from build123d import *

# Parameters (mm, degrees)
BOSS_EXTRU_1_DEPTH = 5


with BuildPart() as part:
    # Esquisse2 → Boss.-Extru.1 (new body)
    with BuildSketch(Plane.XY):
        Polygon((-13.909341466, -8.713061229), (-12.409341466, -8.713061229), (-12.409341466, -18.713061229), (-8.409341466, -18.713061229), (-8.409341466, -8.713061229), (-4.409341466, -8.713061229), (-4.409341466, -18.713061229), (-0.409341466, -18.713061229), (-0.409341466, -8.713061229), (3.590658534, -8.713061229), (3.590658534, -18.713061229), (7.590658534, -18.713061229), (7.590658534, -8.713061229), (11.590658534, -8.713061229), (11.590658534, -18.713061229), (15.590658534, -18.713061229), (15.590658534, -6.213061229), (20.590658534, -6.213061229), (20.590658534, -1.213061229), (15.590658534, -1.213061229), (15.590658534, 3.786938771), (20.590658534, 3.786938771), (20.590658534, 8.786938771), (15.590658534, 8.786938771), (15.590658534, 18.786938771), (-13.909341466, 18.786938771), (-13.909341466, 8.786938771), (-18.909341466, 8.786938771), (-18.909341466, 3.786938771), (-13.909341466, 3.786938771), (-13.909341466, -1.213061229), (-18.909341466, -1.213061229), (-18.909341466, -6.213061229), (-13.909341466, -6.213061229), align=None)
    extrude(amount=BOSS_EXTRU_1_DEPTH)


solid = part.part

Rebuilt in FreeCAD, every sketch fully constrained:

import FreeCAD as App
import Part
import Sketcher
Q = App.Units.Quantity


def add_polygon(sketch, points):
    """Adds a closed chain of lines whose ends are joined by coincident constraints."""
    first, n = sketch.GeometryCount, len(points)
    for a, b in zip(points, points[1:] + points[:1]):
        sketch.addGeometry(Part.LineSegment(App.Vector(*a, 0), App.Vector(*b, 0)), False)
    for i in range(n):
        sketch.addConstraint(Sketcher.Constraint("Coincident", first + i, 2, first + (i + 1) % n, 1))

doc = App.newDocument("Part")
body = doc.addObject("PartDesign::Body", "Body")

# Sketch on XY plane
sketch1 = doc.addObject("Sketcher::SketchObject", "Sketch")
body.addObject(sketch1)
sketch1.AttachmentSupport = (doc.XY_Plane, [""])
sketch1.MapMode = "FlatFace"
add_polygon(sketch1, [(-13.909341, -8.713061), (-12.409341, -8.713061), (-12.409341, -18.713061), (-8.409341, -18.713061), (-8.409341, -8.713061), (-4.409341, -8.713061), (-4.409341, -18.713061), (-0.409341, -18.713061), (-0.409341, -8.713061), (3.590659, -8.713061), (3.590659, -18.713061), (7.590659, -18.713061), (7.590659, -8.713061), (11.590659, -8.713061), (11.590659, -18.713061), (15.590659, -18.713061), (15.590659, -6.213061), (20.590659, -6.213061), (20.590659, -1.213061), (15.590659, -1.213061), (15.590659, 3.786939), (20.590659, 3.786939), (20.590659, 8.786939), (15.590659, 8.786939), (15.590659, 18.786939), (-13.909341, 18.786939), (-13.909341, 8.786939), (-18.909341, 8.786939), (-18.909341, 3.786939), (-13.909341, 3.786939), (-13.909341, -1.213061), (-18.909341, -1.213061), (-18.909341, -6.213061), (-13.909341, -6.213061)])  # lines 0-33
sketch1.addConstraint([
    Sketcher.Constraint("Horizontal", 0),
    Sketcher.Constraint("Vertical", 1),
    Sketcher.Constraint("Horizontal", 2),
    Sketcher.Constraint("Vertical", 3),
    Sketcher.Constraint("Horizontal", 4),
    Sketcher.Constraint("Vertical", 5),
    Sketcher.Constraint("Horizontal", 6),
    Sketcher.Constraint("Vertical", 7),
    Sketcher.Constraint("Horizontal", 8),
    Sketcher.Constraint("Vertical", 9),
    Sketcher.Constraint("Horizontal", 10),
    Sketcher.Constraint("Vertical", 11),
    Sketcher.Constraint("Horizontal", 12),
    Sketcher.Constraint("Vertical", 13),
    Sketcher.Constraint("Horizontal", 14),
    Sketcher.Constraint("Vertical", 15),
    Sketcher.Constraint("Horizontal", 16),
    Sketcher.Constraint("Vertical", 17),
    Sketcher.Constraint("Horizontal", 18),
    Sketcher.Constraint("Vertical", 19),
    Sketcher.Constraint("Horizontal", 20),
    Sketcher.Constraint("Vertical", 21),
    Sketcher.Constraint("Horizontal", 22),
    Sketcher.Constraint("Vertical", 23),
    Sketcher.Constraint("Horizontal", 24),
    Sketcher.Constraint("Vertical", 25),
    Sketcher.Constraint("Horizontal", 26),
    Sketcher.Constraint("Vertical", 27),
    Sketcher.Constraint("Horizontal", 28),
    Sketcher.Constraint("Vertical", 29),
    Sketcher.Constraint("Horizontal", 30),
    Sketcher.Constraint("Vertical", 31),
    Sketcher.Constraint("Horizontal", 32),
    Sketcher.Constraint("Vertical", 33),
    Sketcher.Constraint("Horizontal", 0, 2, 3, 2),
    Sketcher.Constraint("Horizontal", 2, 2, 5, 2),
    Sketcher.Constraint("Horizontal", 4, 2, 7, 2),
    Sketcher.Constraint("Horizontal", 6, 2, 9, 2),
    Sketcher.Constraint("Horizontal", 8, 2, 11, 2),
    Sketcher.Constraint("Horizontal", 10, 2, 13, 2),
    Sketcher.Constraint("Horizontal", 22, 2, 25, 2),
    Sketcher.Constraint("Horizontal", 20, 2, 27, 2),
    Sketcher.Constraint("Horizontal", 18, 2, 29, 2),
    Sketcher.Constraint("Horizontal", 16, 2, 31, 2),
    Sketcher.Constraint("Vertical", 15, 2, 18, 2),
    Sketcher.Constraint("Vertical", 17, 2, 20, 2),
    Sketcher.Constraint("Vertical", 19, 2, 22, 2),
    Sketcher.Constraint("Vertical", 25, 2, 28, 2),
    Sketcher.Constraint("Vertical", 27, 2, 30, 2),
    Sketcher.Constraint("Vertical", 29, 2, 32, 2),
    Sketcher.Constraint("Equal", 2, 4),
    Sketcher.Constraint("Equal", 4, 6),
    Sketcher.Constraint("Equal", 6, 8),
    Sketcher.Constraint("Equal", 8, 10),
    Sketcher.Constraint("Equal", 10, 12),
    Sketcher.Constraint("Equal", 12, 14),
    Sketcher.Constraint("Equal", 22, 26),
    Sketcher.Constraint("Equal", 32, 17),
    Sketcher.Constraint("Equal", 17, 19),
    Sketcher.Constraint("Equal", 19, 21),
    Sketcher.Constraint("Equal", 13, 23),
    Sketcher.Constraint("DistanceX", 2, 1, 2, 2, Q("4 mm")),
    Sketcher.Constraint("DistanceX", 16, 1, 16, 2, Q("5 mm")),
    Sketcher.Constraint("DistanceY", 1, 2, 1, 1, Q("10 mm")),
    Sketcher.Constraint("DistanceX", 0, 1, 0, 2, Q("1.5 mm")),
    Sketcher.Constraint("DistanceY", 15, 1, 15, 2, Q("12.5 mm")),
    Sketcher.Constraint("DistanceX", 0, 2, -1, 1, Q("12.409341 mm")),
    Sketcher.Constraint("DistanceY", 0, 2, -1, 1, Q("8.713061 mm")),
])
pad1 = doc.addObject("PartDesign::Pad", "Pad")
body.addObject(pad1)
pad1.Profile = sketch1
pad1.Length = 5

doc.recompute()
